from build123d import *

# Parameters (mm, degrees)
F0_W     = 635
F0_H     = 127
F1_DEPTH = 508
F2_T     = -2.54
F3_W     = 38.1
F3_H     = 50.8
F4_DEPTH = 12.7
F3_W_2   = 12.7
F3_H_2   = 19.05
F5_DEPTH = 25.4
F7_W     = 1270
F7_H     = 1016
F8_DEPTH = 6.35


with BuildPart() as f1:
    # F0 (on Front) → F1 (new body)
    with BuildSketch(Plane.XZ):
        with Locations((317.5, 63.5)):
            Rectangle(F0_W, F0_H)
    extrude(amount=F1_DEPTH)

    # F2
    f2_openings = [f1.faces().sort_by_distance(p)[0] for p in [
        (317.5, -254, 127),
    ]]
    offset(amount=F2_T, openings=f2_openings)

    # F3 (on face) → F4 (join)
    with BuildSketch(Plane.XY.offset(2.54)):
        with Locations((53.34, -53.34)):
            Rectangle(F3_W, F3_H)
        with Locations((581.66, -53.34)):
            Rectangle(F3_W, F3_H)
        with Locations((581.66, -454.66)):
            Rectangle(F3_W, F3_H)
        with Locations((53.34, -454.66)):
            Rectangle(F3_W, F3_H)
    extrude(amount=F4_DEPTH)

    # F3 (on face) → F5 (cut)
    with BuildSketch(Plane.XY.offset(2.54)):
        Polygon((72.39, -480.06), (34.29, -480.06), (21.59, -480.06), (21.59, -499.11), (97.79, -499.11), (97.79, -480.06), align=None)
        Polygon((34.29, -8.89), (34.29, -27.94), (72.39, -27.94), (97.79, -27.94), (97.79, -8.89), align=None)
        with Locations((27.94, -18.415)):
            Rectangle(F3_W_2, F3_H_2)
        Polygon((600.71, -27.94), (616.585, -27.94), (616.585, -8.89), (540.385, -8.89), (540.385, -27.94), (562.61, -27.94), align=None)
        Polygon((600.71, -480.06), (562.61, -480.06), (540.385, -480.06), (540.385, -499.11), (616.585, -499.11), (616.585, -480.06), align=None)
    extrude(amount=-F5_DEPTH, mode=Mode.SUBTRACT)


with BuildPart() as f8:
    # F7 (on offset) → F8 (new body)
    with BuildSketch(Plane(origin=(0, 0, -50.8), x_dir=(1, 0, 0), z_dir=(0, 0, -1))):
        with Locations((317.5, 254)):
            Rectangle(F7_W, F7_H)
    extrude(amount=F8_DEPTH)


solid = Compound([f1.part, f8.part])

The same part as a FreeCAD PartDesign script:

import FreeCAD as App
import Part
import Sketcher
Q = App.Units.Quantity


def faces_at(feature, points):
    """Names of the faces that lie closest to the given points."""
    faces = feature.Shape.Faces
    near = lambda p: min(range(len(faces)), key=lambda i: faces[i].distToShape(Part.Vertex(*p))[0])
    return sorted({f"Face{near(p) + 1}" for p in points})


def add_polygon(sketch, points):
    """Adds a closed chain of lines whose ends are joined by coincident constraints."""
    first, n = sketch.GeometryCount, len(points)
    for a, b in zip(points, points[1:] + points[:1]):
        sketch.addGeometry(Part.LineSegment(App.Vector(*a, 0), App.Vector(*b, 0)), False)
    for i in range(n):
        sketch.addConstraint(Sketcher.Constraint("Coincident", first + i, 2, first + (i + 1) % n, 1))

doc = App.newDocument("Part")
body = doc.addObject("PartDesign::Body", "Body")

sketch1 = body.newObject("Sketcher::SketchObject", "Sketch")
sketch1.AttachmentSupport = (doc.getObject("XZ_Plane"), [""])
sketch1.MapMode = "FlatFace"
add_polygon(sketch1, [(0, 127), (0, 0), (635, 0), (635, 127)])
sketch1.addConstraint([
    Sketcher.Constraint("Vertical", 0),
    Sketcher.Constraint("Horizontal", 1),
    Sketcher.Constraint("Vertical", 2),
    Sketcher.Constraint("Horizontal", 3),
    Sketcher.Constraint("Coincident", 0, 2, -1, 1),
    Sketcher.Constraint("DistanceX", 1, 1, 1, 2, Q("25 in")),
    Sketcher.Constraint("DistanceY", 0, 2, 0, 1, Q("5 in")),
])
pad1 = body.newObject("PartDesign::Pad", "Pad")
pad1.Profile = sketch1
pad1.Length = Q("20 in")
doc.recompute()

thickness = body.newObject("PartDesign::Thickness", "Thickness")
thickness.Base = (pad1, faces_at(pad1, [(317.5, -254, 127)]))
thickness.Value = Q("0.1 in")
thickness.Reversed = True
thickness.Join = "Arc"

sketch2 = body.newObject("Sketcher::SketchObject", "Sketch001")
sketch2.AttachmentSupport = (doc.getObject("XY_Plane"), [""])
sketch2.MapMode = "FlatFace"
sketch2.AttachmentOffset = App.Placement(App.Vector(0, 0, 0.1 * 25.4), App.Rotation())
add_polygon(sketch2, [(34, -28), (34, -79), (72, -79), (72, -28)])
add_polygon(sketch2, [(563, -28), (563, -79), (601, -79), (601, -28)])
add_polygon(sketch2, [(563, -429), (563, -480), (601, -480), (601, -429)])
add_polygon(sketch2, [(34, -429), (34, -480), (72, -480), (72, -429)])
sketch2.addConstraint([
    Sketcher.Constraint("Vertical", 0),
    Sketcher.Constraint("Horizontal", 1),
    Sketcher.Constraint("Vertical", 2),
    Sketcher.Constraint("Horizontal", 3),
    Sketcher.Constraint("Vertical", 4),
    Sketcher.Constraint("Horizontal", 5),
    Sketcher.Constraint("Vertical", 6),
    Sketcher.Constraint("Horizontal", 7),
    Sketcher.Constraint("Vertical", 8),
    Sketcher.Constraint("Horizontal", 9),
    Sketcher.Constraint("Vertical", 10),
    Sketcher.Constraint("Horizontal", 11),
    Sketcher.Constraint("Vertical", 12),
    Sketcher.Constraint("Horizontal", 13),
    Sketcher.Constraint("Vertical", 14),
    Sketcher.Constraint("Horizontal", 15),
    Sketcher.Constraint("Horizontal", 1, 2, 4, 2),
    Sketcher.Constraint("Horizontal", 3, 2, 6, 2),
    Sketcher.Constraint("Horizontal", 9, 2, 12, 2),
    Sketcher.Constraint("Horizontal", 11, 2, 14, 2),
    Sketcher.Constraint("Vertical", 7, 2, 8, 2),
    Sketcher.Constraint("Vertical", 6, 2, 9, 2),
    Sketcher.Constraint("Vertical", 3, 2, 12, 2),
    Sketcher.Constraint("Vertical", 2, 2, 13, 2),
    Sketcher.Constraint("Equal", 3, 5),
    Sketcher.Constraint("Equal", 6, 8),
    Sketcher.Constraint("DistanceY", 0, 2, 0, 1, Q("2 in")),
    Sketcher.Constraint("DistanceX", 1, 1, 1, 2, Q("1.5 in")),
    Sketcher.Constraint("DistanceY", 0, 2, -1, 1, Q("3.1 in")),
    Sketcher.Constraint("DistanceY", 8, 2, -1, 1, Q("18.9 in")),
    Sketcher.Constraint("DistanceX", 1, 2, 4, 2, Q("19.3 in")),
    Sketcher.Constraint("DistanceX", -1, 1, 0, 2, Q("1.35 in")),
])
pad2 = body.newObject("PartDesign::Pad", "Pad001")
pad2.Profile = sketch2
pad2.Length = Q("0.5 in")

sketch3 = body.newObject("Sketcher::SketchObject", "Sketch002")
sketch3.AttachmentSupport = (doc.getObject("XY_Plane"), [""])
sketch3.MapMode = "FlatFace"
sketch3.AttachmentOffset = App.Placement(App.Vector(0, 0, 0.1 * 25.4), App.Rotation())
add_polygon(sketch3, [(22, -480), (22, -499), (98, -499), (98, -480)])
add_polygon(sketch3, [(98, -28), (98, -9), (22, -9), (22, -28)])
add_polygon(sketch3, [(617, -28), (617, -9), (540, -9), (540, -28)])
add_polygon(sketch3, [(540, -480), (540, -499), (617, -499), (617, -480)])
sketch3.addConstraint([
    Sketcher.Constraint("Vertical", 0),
    Sketcher.Constraint("Horizontal", 1),
    Sketcher.Constraint("Vertical", 2),
    Sketcher.Constraint("Horizontal", 3),
    Sketcher.Constraint("Vertical", 4),
    Sketcher.Constraint("Horizontal", 5),
    Sketcher.Constraint("Vertical", 6),
    Sketcher.Constraint("Horizontal", 7),
    Sketcher.Constraint("Vertical", 8),
    Sketcher.Constraint("Horizontal", 9),
    Sketcher.Constraint("Vertical", 10),
    Sketcher.Constraint("Horizontal", 11),
    Sketcher.Constraint("Vertical", 12),
    Sketcher.Constraint("Horizontal", 13),
    Sketcher.Constraint("Vertical", 14),
    Sketcher.Constraint("Horizontal", 15),
    Sketcher.Constraint("Horizontal", 5, 2, 8, 2),
    Sketcher.Constraint("Horizontal", 7, 2, 10, 2),
    Sketcher.Constraint("Horizontal", 1, 2, 12, 2),
    Sketcher.Constraint("Horizontal", 3, 2, 14, 2),
    Sketcher.Constraint("Vertical", 2, 2, 4, 2),
    Sketcher.Constraint("Vertical", 3, 2, 5, 2),
    Sketcher.Constraint("Vertical", 10, 2, 12, 2),
    Sketcher.Constraint("Vertical", 11, 2, 13, 2),
    Sketcher.Constraint("Equal", 7, 9),
    Sketcher.Constraint("Equal", 2, 4),
    Sketcher.Constraint("DistanceX", 1, 1, 1, 2, Q("3 in")),
    Sketcher.Constraint("DistanceY", 0, 2, 0, 1, Q("0.75 in")),
    Sketcher.Constraint("DistanceY", 2, 2, -1, 1, Q("18.9 in")),
    Sketcher.Constraint("DistanceY", 6, 2, -1, 1, Q("1.1 in")),
    Sketcher.Constraint("DistanceX", -1, 1, 0, 2, Q("0.85 in")),
    Sketcher.Constraint("DistanceX", -1, 1, 8, 2, Q("24.275 in")),
])
pocket1 = body.newObject("PartDesign::Pocket", "Pocket")
pocket1.Profile = sketch3
pocket1.Length = Q("1 in")
body2 = doc.addObject("PartDesign::Body", "Body001")

sketch4 = body2.newObject("Sketcher::SketchObject", "Sketch003")
sketch4.AttachmentSupport = (doc.getObject("XY_Plane001"), [""])
sketch4.MapMode = "FlatFace"
sketch4.AttachmentOffset = App.Placement(App.Vector(0, 0, -2 * 25.4), App.Rotation())
add_polygon(sketch4, [(-318, -762), (-318, 254), (952, 254), (952, -762)])
sketch4.addConstraint([
    Sketcher.Constraint("Vertical", 0),
    Sketcher.Constraint("Horizontal", 1),
    Sketcher.Constraint("Vertical", 2),
    Sketcher.Constraint("Horizontal", 3),
    Sketcher.Constraint("DistanceX", 1, 1, 1, 2, Q("50 in")),
    Sketcher.Constraint("DistanceY", 0, 1, 0, 2, Q("40 in")),
    Sketcher.Constraint("DistanceY", -1, 1, 0, 2, Q("10 in")),
    Sketcher.Constraint("DistanceX", 0, 2, -1, 1, Q("12.5 in")),
])
pad3 = body2.newObject("PartDesign::Pad", "Pad002")
pad3.Profile = sketch4
pad3.Length = Q("0.25 in")
pad3.Reversed = True

doc.recompute()
